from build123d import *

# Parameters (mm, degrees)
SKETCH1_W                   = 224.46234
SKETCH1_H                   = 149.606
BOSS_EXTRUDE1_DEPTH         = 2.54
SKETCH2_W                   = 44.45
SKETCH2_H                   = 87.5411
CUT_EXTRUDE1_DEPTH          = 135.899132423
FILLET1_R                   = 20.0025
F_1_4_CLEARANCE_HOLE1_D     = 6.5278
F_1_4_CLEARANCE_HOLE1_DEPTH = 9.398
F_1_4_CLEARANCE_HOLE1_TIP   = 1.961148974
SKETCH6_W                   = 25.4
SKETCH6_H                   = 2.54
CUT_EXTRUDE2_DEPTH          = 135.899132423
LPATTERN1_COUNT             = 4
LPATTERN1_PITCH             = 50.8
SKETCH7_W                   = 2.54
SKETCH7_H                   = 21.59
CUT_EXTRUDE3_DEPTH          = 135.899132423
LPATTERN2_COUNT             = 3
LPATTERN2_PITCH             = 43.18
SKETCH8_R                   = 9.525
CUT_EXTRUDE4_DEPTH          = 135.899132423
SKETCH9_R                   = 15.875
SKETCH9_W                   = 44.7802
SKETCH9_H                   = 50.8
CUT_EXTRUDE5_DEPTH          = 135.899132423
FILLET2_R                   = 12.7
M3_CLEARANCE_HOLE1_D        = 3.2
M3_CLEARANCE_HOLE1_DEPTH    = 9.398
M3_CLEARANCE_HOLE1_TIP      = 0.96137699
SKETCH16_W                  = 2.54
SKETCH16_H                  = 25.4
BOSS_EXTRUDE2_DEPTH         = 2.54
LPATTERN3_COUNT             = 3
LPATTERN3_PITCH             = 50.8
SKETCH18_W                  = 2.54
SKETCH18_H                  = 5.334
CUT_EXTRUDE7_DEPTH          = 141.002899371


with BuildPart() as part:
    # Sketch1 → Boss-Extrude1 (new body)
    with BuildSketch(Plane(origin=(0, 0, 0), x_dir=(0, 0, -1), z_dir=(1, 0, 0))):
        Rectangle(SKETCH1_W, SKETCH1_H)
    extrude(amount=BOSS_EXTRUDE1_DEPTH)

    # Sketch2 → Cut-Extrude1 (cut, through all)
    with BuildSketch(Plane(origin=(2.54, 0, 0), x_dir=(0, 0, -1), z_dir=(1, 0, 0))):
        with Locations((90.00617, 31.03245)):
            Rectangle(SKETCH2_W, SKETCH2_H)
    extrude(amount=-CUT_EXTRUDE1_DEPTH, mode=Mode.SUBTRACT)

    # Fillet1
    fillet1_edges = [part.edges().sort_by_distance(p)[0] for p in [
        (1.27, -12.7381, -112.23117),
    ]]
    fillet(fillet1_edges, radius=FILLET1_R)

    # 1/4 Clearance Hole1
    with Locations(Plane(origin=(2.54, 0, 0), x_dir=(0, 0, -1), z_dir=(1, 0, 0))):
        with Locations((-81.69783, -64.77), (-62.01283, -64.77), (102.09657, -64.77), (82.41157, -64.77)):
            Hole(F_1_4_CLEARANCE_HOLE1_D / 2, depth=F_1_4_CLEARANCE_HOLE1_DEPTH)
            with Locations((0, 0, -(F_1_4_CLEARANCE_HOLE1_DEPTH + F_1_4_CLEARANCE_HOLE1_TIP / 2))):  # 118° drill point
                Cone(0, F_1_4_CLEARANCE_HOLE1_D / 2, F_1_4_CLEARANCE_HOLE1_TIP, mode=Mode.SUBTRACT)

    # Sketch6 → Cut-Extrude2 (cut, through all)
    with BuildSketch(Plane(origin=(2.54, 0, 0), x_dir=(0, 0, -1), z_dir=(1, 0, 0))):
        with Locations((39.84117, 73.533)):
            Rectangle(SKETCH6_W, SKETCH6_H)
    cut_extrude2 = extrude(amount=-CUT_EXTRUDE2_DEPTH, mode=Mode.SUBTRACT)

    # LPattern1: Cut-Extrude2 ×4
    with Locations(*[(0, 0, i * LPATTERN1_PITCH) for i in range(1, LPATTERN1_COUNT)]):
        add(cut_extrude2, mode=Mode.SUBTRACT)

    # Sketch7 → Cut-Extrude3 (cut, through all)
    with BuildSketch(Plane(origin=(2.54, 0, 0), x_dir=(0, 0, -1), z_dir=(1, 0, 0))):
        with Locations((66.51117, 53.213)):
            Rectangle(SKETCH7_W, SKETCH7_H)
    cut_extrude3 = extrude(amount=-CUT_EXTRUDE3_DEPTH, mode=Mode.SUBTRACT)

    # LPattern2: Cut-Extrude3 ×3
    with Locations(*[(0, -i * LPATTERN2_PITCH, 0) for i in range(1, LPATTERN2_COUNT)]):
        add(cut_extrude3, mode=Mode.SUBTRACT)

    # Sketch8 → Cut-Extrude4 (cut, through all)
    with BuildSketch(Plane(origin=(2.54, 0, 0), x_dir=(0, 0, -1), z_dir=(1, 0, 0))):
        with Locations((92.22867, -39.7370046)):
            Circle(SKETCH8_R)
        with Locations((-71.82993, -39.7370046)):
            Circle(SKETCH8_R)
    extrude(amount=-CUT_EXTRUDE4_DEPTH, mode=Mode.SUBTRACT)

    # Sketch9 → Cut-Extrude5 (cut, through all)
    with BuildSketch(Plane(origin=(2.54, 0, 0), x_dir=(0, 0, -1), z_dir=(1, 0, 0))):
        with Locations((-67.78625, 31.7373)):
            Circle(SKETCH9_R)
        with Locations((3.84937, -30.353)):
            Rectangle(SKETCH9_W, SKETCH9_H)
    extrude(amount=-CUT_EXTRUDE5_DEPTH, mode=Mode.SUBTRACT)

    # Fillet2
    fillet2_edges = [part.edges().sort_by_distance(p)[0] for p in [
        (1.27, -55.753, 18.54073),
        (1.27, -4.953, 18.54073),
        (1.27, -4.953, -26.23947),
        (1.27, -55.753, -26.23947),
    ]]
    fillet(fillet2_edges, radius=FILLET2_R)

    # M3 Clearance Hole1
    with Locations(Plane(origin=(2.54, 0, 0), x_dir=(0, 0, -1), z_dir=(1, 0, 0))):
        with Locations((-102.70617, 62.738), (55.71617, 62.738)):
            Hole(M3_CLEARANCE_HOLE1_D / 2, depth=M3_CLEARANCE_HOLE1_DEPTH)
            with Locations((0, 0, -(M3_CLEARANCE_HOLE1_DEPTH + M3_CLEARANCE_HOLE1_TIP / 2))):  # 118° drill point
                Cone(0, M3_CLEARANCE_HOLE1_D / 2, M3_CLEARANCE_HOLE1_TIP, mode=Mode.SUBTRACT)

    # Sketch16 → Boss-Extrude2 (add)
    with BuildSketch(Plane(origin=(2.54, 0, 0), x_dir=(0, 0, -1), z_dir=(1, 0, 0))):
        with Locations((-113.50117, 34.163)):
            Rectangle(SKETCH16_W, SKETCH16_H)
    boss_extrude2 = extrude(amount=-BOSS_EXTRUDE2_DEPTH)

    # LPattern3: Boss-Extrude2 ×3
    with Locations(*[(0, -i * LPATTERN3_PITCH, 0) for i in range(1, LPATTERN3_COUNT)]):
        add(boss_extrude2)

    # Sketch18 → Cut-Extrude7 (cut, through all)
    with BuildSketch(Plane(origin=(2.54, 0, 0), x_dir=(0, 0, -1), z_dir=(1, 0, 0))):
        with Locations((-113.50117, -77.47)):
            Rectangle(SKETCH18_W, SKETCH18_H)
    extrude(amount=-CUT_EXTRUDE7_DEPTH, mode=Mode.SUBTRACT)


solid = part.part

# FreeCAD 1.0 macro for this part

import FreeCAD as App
import Part
import Sketcher
from FreeCAD import Vector
Q = App.Units.Quantity


def edges_at(feature, points):
    """Names of the edges that pass closest to the given points."""
    edges = feature.Shape.Edges
    near = lambda p: min(range(len(edges)), key=lambda i: edges[i].distToShape(Part.Vertex(*p))[0])
    return sorted({f"Edge{near(p) + 1}" for p in points})


def add_polygon(sketch, points):
    """Adds a closed chain of lines whose ends are joined by coincident constraints."""
    first, n = sketch.GeometryCount, len(points)
    for a, b in zip(points, points[1:] + points[:1]):
        sketch.addGeometry(Part.LineSegment(App.Vector(*a, 0), App.Vector(*b, 0)), False)
    for i in range(n):
        sketch.addConstraint(Sketcher.Constraint("Coincident", first + i, 2, first + (i + 1) % n, 1))

doc = App.newDocument("Part")
params = doc.addObject("Spreadsheet::Sheet", "Params")
for row, (alias, value) in enumerate([
    ("sketch1_width", "5.89 in"),
    ("pad1_length", "0.1 in"),
    ("sketch2_height", "1.75 in"),
    ("fillet_radius", "0.7875 in"),
    ("sketch3_diameter", "0.257 in"),
    ("hole_diameter", "0.257 in"),
    ("hole_depth", "0.37 in"),
    ("sketch4_height", "1 in"),
    ("sketch4_width", "0.1 in"),
    ("linearpattern_pitch", "2 in"),
    ("sketch5_height", "0.1 in"),
    ("sketch5_width", "0.85 in"),
    ("linearpattern2_pitch", "1.7 in"),
    ("sketch6_diameter", "0.75 in"),
    ("sketch7_diameter", "1.25 in"),
    ("sketch7_width", "2 in"),
    ("sketch7_height", "1.763 in"),
    ("fillet2_radius", "0.5 in"),
    ("hole2_diameter", "3.2 mm"),
    ("hole2_depth", "0.37 in"),
    ("sketch9_width", "1 in"),
    ("sketch9_height", "0.1 in"),
    ("pad2_length", "0.1 in"),
    ("linearpattern3_pitch", "2 in"),
    ("sketch10_height", "0.1 in"),
    ("sketch10_width", "0.21 in"),
], start=1):
    params.set(f"A{row}", alias)
    params.set(f"B{row}", "=" + value)
    params.setAlias(f"B{row}", alias)

body = doc.addObject("PartDesign::Body", "Body")

# Sketch on YZ plane
sketch1 = body.newObject("Sketcher::SketchObject", "Sketch")
sketch1.AttachmentSupport = (doc.getObject("YZ_Plane"), [""])
sketch1.MapMode = "FlatFace"
add_polygon(sketch1, [(74.803, 112.23117), (-74.803, 112.23117), (-74.803, -112.23117), (74.803, -112.23117)])  # lines 0-3
sketch1.addConstraint(Sketcher.Constraint("Horizontal", 0))
sketch1.addConstraint(Sketcher.Constraint("Vertical", 1))
sketch1.addConstraint(Sketcher.Constraint("Horizontal", 2))
sketch1.addConstraint(Sketcher.Constraint("Vertical", 3))
sketch1.addConstraint(Sketcher.Constraint("Symmetric", 0, 2, 2, 2, -1, 1))
sketch1.addConstraint(Sketcher.Constraint("DistanceX", 0, 2, 0, 1, Q("5.89 in")))
sketch1.addConstraint(Sketcher.Constraint("DistanceY", 1, 2, 1, 1, Q("8.8371 in")))
sketch1.setExpression("Constraints[9]", "Params.sketch1_width")
pad1 = body.newObject("PartDesign::Pad", "Pad")
pad1.Profile = sketch1
pad1.setExpression("Length", "Params.pad1_length")

# Sketch on YZ plane
sketch2 = body.newObject("Sketcher::SketchObject", "Sketch001")
sketch2.AttachmentSupport = (doc.getObject("YZ_Plane"), [""])
sketch2.MapMode = "FlatFace"
sketch2.AttachmentOffset = App.Placement(Vector(0, 0, 0.1 * 25.4), App.Rotation())
add_polygon(sketch2, [(74.803, -67.78117), (-12.7381, -67.78117), (-12.7381, -112.23117), (74.803, -112.23117)])  # lines 0-3
sketch2.addConstraint(Sketcher.Constraint("Horizontal", 0))
sketch2.addConstraint(Sketcher.Constraint("Vertical", 1))
sketch2.addConstraint(Sketcher.Constraint("Horizontal", 2))
sketch2.addConstraint(Sketcher.Constraint("Vertical", 3))
sketch2.addConstraint(Sketcher.Constraint("DistanceY", 1, 2, 1, 1, Q("1.75 in")))
sketch2.addConstraint(Sketcher.Constraint("DistanceX", 0, 2, 0, 1, Q("3.4465 in")))
sketch2.addConstraint(Sketcher.Constraint("DistanceX", -1, 1, 2, 2, Q("2.945 in")))
sketch2.addConstraint(Sketcher.Constraint("DistanceY", 0, 2, -1, 1, 67.78117))
sketch2.setExpression("Constraints[8]", "Params.sketch2_height")
pocket1 = body.newObject("PartDesign::Pocket", "Pocket")
pocket1.Profile = sketch2
pocket1.Type = "ThroughAll"
doc.recompute()

fillet = body.newObject("PartDesign::Fillet", "Fillet")
fillet.Base = (pocket1, edges_at(pocket1, [(1.27, -12.738, -112.231)]))
fillet.setExpression("Radius", "Params.fillet_radius")

# Sketch on YZ plane
sketch3 = body.newObject("Sketcher::SketchObject", "Sketch002")
sketch3.AttachmentSupport = (doc.getObject("YZ_Plane"), [""])
sketch3.MapMode = "FlatFace"
sketch3.AttachmentOffset = App.Placement(Vector(0, 0, 0.1 * 25.4), App.Rotation())
sketch3.addGeometry(Part.Circle(Vector(-64.77, 81.69783, 0), Vector(0, 0, 1), 3.2639), False)
sketch3.addGeometry(Part.Circle(Vector(-64.77, 62.01283, 0), Vector(0, 0, 1), 3.2639), False)
sketch3.addGeometry(Part.Circle(Vector(-64.77, -102.09657, 0), Vector(0, 0, 1), 3.2639), False)
sketch3.addGeometry(Part.Circle(Vector(-64.77, -82.41157, 0), Vector(0, 0, 1), 3.2639), False)
sketch3.addConstraint(Sketcher.Constraint("Equal", 0, 1))
sketch3.addConstraint(Sketcher.Constraint("Equal", 1, 2))
sketch3.addConstraint(Sketcher.Constraint("Equal", 2, 3))
sketch3.addConstraint(Sketcher.Constraint("Vertical", 0, 3, 1, 3))
sketch3.addConstraint(Sketcher.Constraint("Vertical", 1, 3, 2, 3))
sketch3.addConstraint(Sketcher.Constraint("Vertical", 2, 3, 3, 3))
sketch3.addConstraint(Sketcher.Constraint("Diameter", 0, Q("0.257 in")))
sketch3.addConstraint(Sketcher.Constraint("DistanceX", 0, 3, -1, 1, Q("2.55 in")))
sketch3.addConstraint(Sketcher.Constraint("DistanceY", 1, 3, 0, 3, Q("0.775 in")))
sketch3.addConstraint(Sketcher.Constraint("DistanceY", 2, 3, 1, 3, Q("6.461 in")))
sketch3.addConstraint(Sketcher.Constraint("DistanceY", 2, 3, 3, 3, Q("0.775 in")))
sketch3.addConstraint(Sketcher.Constraint("DistanceY", -1, 1, 0, 3, 81.69783))
sketch3.setExpression("Constraints[6]", "Params.sketch3_diameter")
doc.recompute()
hole = body.newObject("PartDesign::Hole", "Hole")
hole.Profile = sketch3
hole.ThreadType = "None"
hole.setExpression("Diameter", "Params.hole_diameter")
hole.DepthType = "Dimension"
hole.setExpression("Depth", "Params.hole_depth")
hole.DrillPoint = "Angled"
hole.DrillPointAngle = 118

# Sketch on YZ plane
sketch4 = body.newObject("Sketcher::SketchObject", "Sketch003")
sketch4.AttachmentSupport = (doc.getObject("YZ_Plane"), [""])
sketch4.MapMode = "FlatFace"
sketch4.AttachmentOffset = App.Placement(Vector(0, 0, 0.1 * 25.4), App.Rotation())
add_polygon(sketch4, [(74.803, -27.14117), (72.263, -27.14117), (72.263, -52.54117), (74.803, -52.54117)])  # lines 0-3
sketch4.addConstraint(Sketcher.Constraint("Horizontal", 0))
sketch4.addConstraint(Sketcher.Constraint("Vertical", 1))
sketch4.addConstraint(Sketcher.Constraint("Horizontal", 2))
sketch4.addConstraint(Sketcher.Constraint("Vertical", 3))
sketch4.addConstraint(Sketcher.Constraint("DistanceY", 1, 2, 1, 1, Q("1 in")))
sketch4.addConstraint(Sketcher.Constraint("DistanceX", 0, 2, 0, 1, Q("0.1 in")))
sketch4.addConstraint(Sketcher.Constraint("DistanceX", -1, 1, 0, 2, Q("2.845 in")))
sketch4.addConstraint(Sketcher.Constraint("DistanceY", 0, 2, -1, 1, 27.14117))
sketch4.setExpression("Constraints[8]", "Params.sketch4_height")
sketch4.setExpression("Constraints[9]", "Params.sketch4_width")
pocket2 = body.newObject("PartDesign::Pocket", "Pocket001")
pocket2.Profile = sketch4
pocket2.Type = "ThroughAll"
doc.recompute()

linearpattern = body.newObject("PartDesign::LinearPattern", "LinearPattern")
linearpattern.Originals = [pocket2]
linearpattern.Direction = (doc.getObject("Z_Axis"), [""])
linearpattern.Mode = "offset"
linearpattern.setExpression("Offset", "Params.linearpattern_pitch")
linearpattern.Occurrences = 4
body.Tip = linearpattern

# Sketch on YZ plane
sketch5 = body.newObject("Sketcher::SketchObject", "Sketch004")
sketch5.AttachmentSupport = (doc.getObject("YZ_Plane"), [""])
sketch5.MapMode = "FlatFace"
sketch5.AttachmentOffset = App.Placement(Vector(0, 0, 0.1 * 25.4), App.Rotation())
add_polygon(sketch5, [(64.008, -65.24117), (42.418, -65.24117), (42.418, -67.78117), (64.008, -67.78117)])  # lines 0-3
sketch5.addConstraint(Sketcher.Constraint("Horizontal", 0))
sketch5.addConstraint(Sketcher.Constraint("Vertical", 1))
sketch5.addConstraint(Sketcher.Constraint("Horizontal", 2))
sketch5.addConstraint(Sketcher.Constraint("Vertical", 3))
sketch5.addConstraint(Sketcher.Constraint("DistanceY", 1, 2, 1, 1, Q("0.1 in")))
sketch5.addConstraint(Sketcher.Constraint("DistanceX", 0, 2, 0, 1, Q("0.85 in")))
sketch5.addConstraint(Sketcher.Constraint("DistanceX", -1, 1, 0, 2, Q("1.67 in")))
sketch5.addConstraint(Sketcher.Constraint("DistanceY", 0, 2, -1, 1, 65.24117))
sketch5.setExpression("Constraints[8]", "Params.sketch5_height")
sketch5.setExpression("Constraints[9]", "Params.sketch5_width")
pocket3 = body.newObject("PartDesign::Pocket", "Pocket002")
pocket3.Profile = sketch5
pocket3.Type = "ThroughAll"
doc.recompute()

linearpattern2 = body.newObject("PartDesign::LinearPattern", "LinearPattern001")
linearpattern2.Originals = [pocket3]
linearpattern2.Direction = (doc.getObject("Y_Axis"), [""])
linearpattern2.Mode = "offset"
linearpattern2.setExpression("Offset", "Params.linearpattern2_pitch")
linearpattern2.Occurrences = 3
linearpattern2.Reversed = True
body.Tip = linearpattern2

# Sketch on YZ plane
sketch6 = body.newObject("Sketcher::SketchObject", "Sketch005")
sketch6.AttachmentSupport = (doc.getObject("YZ_Plane"), [""])
sketch6.MapMode = "FlatFace"
sketch6.AttachmentOffset = App.Placement(Vector(0, 0, 0.1 * 25.4), App.Rotation())
sketch6.addGeometry(Part.Circle(Vector(-39.737005, -92.22867, 0), Vector(0, 0, 1), 9.525), False)
sketch6.addGeometry(Part.Circle(Vector(-39.737005, 71.82993, 0), Vector(0, 0, 1), 9.525), False)
sketch6.addConstraint(Sketcher.Constraint("Equal", 0, 1))
sketch6.addConstraint(Sketcher.Constraint("Vertical", 0, 3, 1, 3))
sketch6.addConstraint(Sketcher.Constraint("Diameter", 0, Q("0.75 in")))
sketch6.addConstraint(Sketcher.Constraint("DistanceY", 0, 3, 1, 3, Q("6.459 in")))
sketch6.addConstraint(Sketcher.Constraint("DistanceY", 0, 3, -1, 1, 92.22867))
sketch6.addConstraint(Sketcher.Constraint("DistanceX", 0, 3, -1, 1, 39.737005))
sketch6.setExpression("Constraints[2]", "Params.sketch6_diameter")
pocket4 = body.newObject("PartDesign::Pocket", "Pocket003")
pocket4.Profile = sketch6
pocket4.Type = "ThroughAll"

# Sketch on YZ plane
sketch7 = body.newObject("Sketcher::SketchObject", "Sketch006")
sketch7.AttachmentSupport = (doc.getObject("YZ_Plane"), [""])
sketch7.MapMode = "FlatFace"
sketch7.AttachmentOffset = App.Placement(Vector(0, 0, 0.1 * 25.4), App.Rotation())
sketch7.addGeometry(Part.Circle(Vector(31.7373, 67.78625, 0), Vector(0, 0, 1), 15.875), False)  # 0
add_polygon(sketch7, [(-4.953, 18.54073), (-55.753, 18.54073), (-55.753, -26.23947), (-4.953, -26.23947)])  # lines 1-4
sketch7.addConstraint(Sketcher.Constraint("Horizontal", 1))
sketch7.addConstraint(Sketcher.Constraint("Vertical", 2))
sketch7.addConstraint(Sketcher.Constraint("Horizontal", 3))
sketch7.addConstraint(Sketcher.Constraint("Vertical", 4))
sketch7.addConstraint(Sketcher.Constraint("Diameter", 0, Q("1.25 in")))
sketch7.addConstraint(Sketcher.Constraint("DistanceX", 1, 2, 1, 1, Q("2 in")))
sketch7.addConstraint(Sketcher.Constraint("DistanceY", 2, 2, 2, 1, Q("1.763 in")))
sketch7.addConstraint(Sketcher.Constraint("DistanceX", 1, 2, -1, 1, Q("2.195 in")))
sketch7.addConstraint(Sketcher.Constraint("DistanceX", -1, 1, 0, 3, Q("1.2495 in")))
sketch7.addConstraint(Sketcher.Constraint("DistanceY", 1, 2, 0, 3, Q("1.9388 in")))
sketch7.addConstraint(Sketcher.Constraint("DistanceY", -1, 1, 0, 3, 67.78625))
sketch7.setExpression("Constraints[8]", "Params.sketch7_diameter")
sketch7.setExpression("Constraints[9]", "Params.sketch7_width")
sketch7.setExpression("Constraints[10]", "Params.sketch7_height")
pocket5 = body.newObject("PartDesign::Pocket", "Pocket004")
pocket5.Profile = sketch7
pocket5.Type = "ThroughAll"
doc.recompute()

fillet2 = body.newObject("PartDesign::Fillet", "Fillet001")
fillet2.Base = (pocket5, edges_at(pocket5, [
    (1.27, -55.753, 18.541),
    (1.27, -4.953, 18.541),
    (1.27, -4.953, -26.239),
    (1.27, -55.753, -26.239),
]))
fillet2.setExpression("Radius", "Params.fillet2_radius")

# Sketch on YZ plane
sketch8 = body.newObject("Sketcher::SketchObject", "Sketch007")
sketch8.AttachmentSupport = (doc.getObject("YZ_Plane"), [""])
sketch8.MapMode = "FlatFace"
sketch8.AttachmentOffset = App.Placement(Vector(0, 0, 0.1 * 25.4), App.Rotation())
sketch8.addGeometry(Part.Circle(Vector(62.738, 102.70617, 0), Vector(0, 0, 1), 1.6), False)
sketch8.addGeometry(Part.Circle(Vector(62.738, -55.71617, 0), Vector(0, 0, 1), 1.6), False)
sketch8.addConstraint(Sketcher.Constraint("Equal", 0, 1))
sketch8.addConstraint(Sketcher.Constraint("Vertical", 0, 3, 1, 3))
sketch8.addConstraint(Sketcher.Constraint("Diameter", 0, 3.2))
sketch8.addConstraint(Sketcher.Constraint("DistanceX", -1, 1, 0, 3, Q("2.47 in")))
sketch8.addConstraint(Sketcher.Constraint("DistanceY", 1, 3, 0, 3, Q("6.2371 in")))
sketch8.addConstraint(Sketcher.Constraint("DistanceY", -1, 1, 0, 3, 102.70617))
doc.recompute()
hole2 = body.newObject("PartDesign::Hole", "Hole001")
hole2.Profile = sketch8
hole2.ThreadType = "None"
hole2.setExpression("Diameter", "Params.hole2_diameter")
hole2.DepthType = "Dimension"
hole2.setExpression("Depth", "Params.hole2_depth")
hole2.DrillPoint = "Angled"
hole2.DrillPointAngle = 118

# Sketch on YZ plane
sketch9 = body.newObject("Sketcher::SketchObject", "Sketch008")
sketch9.AttachmentSupport = (doc.getObject("YZ_Plane"), [""])
sketch9.MapMode = "FlatFace"
sketch9.AttachmentOffset = App.Placement(Vector(0, 0, 0.1 * 25.4), App.Rotation())
add_polygon(sketch9, [(46.863, 114.77117), (21.463, 114.77117), (21.463, 112.23117), (46.863, 112.23117)])  # lines 0-3
sketch9.addConstraint(Sketcher.Constraint("Horizontal", 0))
sketch9.addConstraint(Sketcher.Constraint("Vertical", 1))
sketch9.addConstraint(Sketcher.Constraint("Horizontal", 2))
sketch9.addConstraint(Sketcher.Constraint("Vertical", 3))
sketch9.addConstraint(Sketcher.Constraint("DistanceX", 0, 2, 0, 1, Q("1 in")))
sketch9.addConstraint(Sketcher.Constraint("DistanceY", 1, 2, 1, 1, Q("0.1 in")))
sketch9.addConstraint(Sketcher.Constraint("DistanceX", -1, 1, 0, 2, Q("0.845 in")))
sketch9.addConstraint(Sketcher.Constraint("DistanceY", -1, 1, 0, 2, 114.77117))
sketch9.setExpression("Constraints[8]", "Params.sketch9_width")
sketch9.setExpression("Constraints[9]", "Params.sketch9_height")
pad2 = body.newObject("PartDesign::Pad", "Pad001")
pad2.Profile = sketch9
pad2.setExpression("Length", "Params.pad2_length")
pad2.Reversed = True
doc.recompute()

linearpattern3 = body.newObject("PartDesign::LinearPattern", "LinearPattern002")
linearpattern3.Originals = [pad2]
linearpattern3.Direction = (doc.getObject("Y_Axis"), [""])
linearpattern3.Mode = "offset"
linearpattern3.setExpression("Offset", "Params.linearpattern3_pitch")
linearpattern3.Occurrences = 3
linearpattern3.Reversed = True
body.Tip = linearpattern3

# Sketch on YZ plane
sketch10 = body.newObject("Sketcher::SketchObject", "Sketch009")
sketch10.AttachmentSupport = (doc.getObject("YZ_Plane"), [""])
sketch10.MapMode = "FlatFace"
sketch10.AttachmentOffset = App.Placement(Vector(0, 0, 0.1 * 25.4), App.Rotation())
add_polygon(sketch10, [(-74.803, 114.77117), (-80.137, 114.77117), (-80.137, 112.23117), (-74.803, 112.23117)])  # lines 0-3
sketch10.addConstraint(Sketcher.Constraint("Horizontal", 0))
sketch10.addConstraint(Sketcher.Constraint("Vertical", 1))
sketch10.addConstraint(Sketcher.Constraint("Horizontal", 2))
sketch10.addConstraint(Sketcher.Constraint("Vertical", 3))
sketch10.addConstraint(Sketcher.Constraint("DistanceY", 1, 2, 1, 1, Q("0.1 in")))
sketch10.addConstraint(Sketcher.Constraint("DistanceX", 0, 2, 0, 1, Q("0.21 in")))
sketch10.addConstraint(Sketcher.Constraint("DistanceX", 0, 2, -1, 1, Q("3.155 in")))
sketch10.addConstraint(Sketcher.Constraint("DistanceY", -1, 1, 0, 2, 114.77117))
sketch10.setExpression("Constraints[8]", "Params.sketch10_height")
sketch10.setExpression("Constraints[9]", "Params.sketch10_width")
pocket6 = body.newObject("PartDesign::Pocket", "Pocket005")
pocket6.Profile = sketch10
pocket6.Type = "ThroughAll"

doc.recompute()
